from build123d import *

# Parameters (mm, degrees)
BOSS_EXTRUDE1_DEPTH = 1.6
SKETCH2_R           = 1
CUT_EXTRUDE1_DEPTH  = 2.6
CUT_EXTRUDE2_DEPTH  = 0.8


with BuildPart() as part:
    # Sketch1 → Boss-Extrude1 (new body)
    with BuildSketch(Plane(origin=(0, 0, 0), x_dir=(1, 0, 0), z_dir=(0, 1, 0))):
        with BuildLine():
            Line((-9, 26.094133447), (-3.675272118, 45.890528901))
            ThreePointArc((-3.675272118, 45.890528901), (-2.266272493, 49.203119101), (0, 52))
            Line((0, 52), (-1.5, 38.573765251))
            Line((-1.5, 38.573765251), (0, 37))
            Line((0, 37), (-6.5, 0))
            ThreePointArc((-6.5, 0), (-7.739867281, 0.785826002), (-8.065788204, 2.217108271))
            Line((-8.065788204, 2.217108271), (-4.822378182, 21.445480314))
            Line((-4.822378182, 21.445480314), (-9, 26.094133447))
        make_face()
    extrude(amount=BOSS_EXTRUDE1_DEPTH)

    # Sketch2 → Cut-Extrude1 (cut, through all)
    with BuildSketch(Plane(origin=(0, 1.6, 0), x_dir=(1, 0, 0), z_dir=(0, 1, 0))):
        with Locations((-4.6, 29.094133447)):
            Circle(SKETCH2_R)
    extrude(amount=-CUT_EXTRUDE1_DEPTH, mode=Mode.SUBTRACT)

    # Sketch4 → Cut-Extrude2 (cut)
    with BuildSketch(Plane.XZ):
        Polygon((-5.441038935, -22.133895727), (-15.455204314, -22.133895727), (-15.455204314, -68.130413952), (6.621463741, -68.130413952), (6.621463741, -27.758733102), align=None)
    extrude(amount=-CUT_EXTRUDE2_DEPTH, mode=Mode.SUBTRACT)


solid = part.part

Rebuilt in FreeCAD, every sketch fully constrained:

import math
import FreeCAD as App
import Part
import Sketcher
from FreeCAD import Vector
Q = App.Units.Quantity

doc = App.newDocument("Part")
body = doc.addObject("PartDesign::Body", "Body")

sketch1 = body.newObject("Sketcher::SketchObject", "Sketch")
sketch1.AttachmentSupport = (doc.getObject("XZ_Plane"), [""])
sketch1.MapMode = "FlatFace"
sketch1.addGeometry([
    Part.LineSegment(Vector(-3.7, -45.9, 0), Vector(-9, -26.1, 0)),
    Part.LineSegment(Vector(-9, -26.1, 0), Vector(-4.8, -21.4, 0)),
    Part.LineSegment(Vector(-4.8, -21.4, 0), Vector(-8.1, -2.2, 0)),
    Part.ArcOfCircle(Part.Circle(Vector(-6.2, -1.9, 0), Vector(0, 0, 1), 1.9), math.radians(100), math.radians(190)),
    Part.LineSegment(Vector(-6.5, 0, 0), Vector(0, -37, 0)),
    Part.LineSegment(Vector(0, -37, 0), Vector(-1.5, -38.6, 0)),
    Part.LineSegment(Vector(-1.5, -38.6, 0), Vector(0, -52, 0)),
    Part.ArcOfCircle(Part.Circle(Vector(8.8, -42.5, 0), Vector(0, 0, 1), 13), math.radians(-165), math.radians(-133)),
], False)
sketch1.addConstraint([
    Sketcher.Constraint("Coincident", 0, 2, 1, 1),
    Sketcher.Constraint("Coincident", 1, 2, 2, 1),
    Sketcher.Constraint("Tangent", 2, 2, 3, 2),
    Sketcher.Constraint("Coincident", 3, 1, 4, 1),
    Sketcher.Constraint("Coincident", 4, 2, 5, 1),
    Sketcher.Constraint("Coincident", 5, 2, 6, 1),
    Sketcher.Constraint("Coincident", 6, 2, 7, 2),
    Sketcher.Constraint("Tangent", 7, 1, 0, 1),
    Sketcher.Constraint("PointOnObject", 3, 1, -1),
    Sketcher.Constraint("PointOnObject", 4, 2, -2),
    Sketcher.Constraint("PointOnObject", 6, 2, -2),
    Sketcher.Constraint("DistanceX", 0, 2, -1, 1, 9.0),
    Sketcher.Constraint("DistanceY", 4, 2, -1, 1, 37.0),
    Sketcher.Constraint("DistanceY", 6, 2, -1, 1, 52.0),
    Sketcher.Constraint("Distance", 0, 20.5),
    Sketcher.Constraint("Distance", 2, 19.5),
    Sketcher.Constraint("DistanceX", 3, 1, -1, 1, 6.5),
    Sketcher.Constraint("DistanceX", 5, 2, -1, 1, 1.5),
    Sketcher.Constraint("Distance", 1, 6.25),
    Sketcher.Constraint("Radius", 3, 1.925834),
    Sketcher.Constraint("Radius", 7, 12.952882),
    Sketcher.Constraint("DistanceX", 3, 3, -1, 1, 6.166781),
    Sketcher.Constraint("DistanceX", -1, 1, 7, 3, 8.833039),
    Sketcher.Constraint("DistanceY", 5, 2, 0, 2, 12.479632),
])
pad1 = body.newObject("PartDesign::Pad", "Pad")
pad1.Profile = sketch1
pad1.Length = 1.6
pad1.Reversed = True

sketch2 = body.newObject("Sketcher::SketchObject", "Sketch001")
sketch2.AttachmentSupport = (doc.getObject("XZ_Plane"), [""])
sketch2.MapMode = "FlatFace"
sketch2.AttachmentOffset = App.Placement(Vector(0, 0, -1.6), App.Rotation())
sketch2.addGeometry(Part.Circle(Vector(-4.6, -29.1, 0), Vector(0, 0, 1), 1), False)
sketch2.addConstraint([
    Sketcher.Constraint("Diameter", 0, 2.0),
    Sketcher.Constraint("DistanceX", 0, 3, -1, 1, 4.6),
    Sketcher.Constraint("DistanceY", 0, 3, -1, 1, 29.094133),
])
pocket1 = body.newObject("PartDesign::Pocket", "Pocket")
pocket1.Profile = sketch2
pocket1.Type = "ThroughAll"
pocket1.Reversed = True

sketch3 = body.newObject("Sketcher::SketchObject", "Sketch002")
sketch3.AttachmentSupport = (doc.getObject("XZ_Plane"), [""])
sketch3.MapMode = "FlatFace"
sketch3.addGeometry([
    Part.LineSegment(Vector(-5, -22, 0), Vector(-15, -22, 0)),
    Part.LineSegment(Vector(-15, -22, 0), Vector(-15, -68, 0)),
    Part.LineSegment(Vector(-15, -68, 0), Vector(7, -68, 0)),
    Part.LineSegment(Vector(7, -68, 0), Vector(7, -28, 0)),
    Part.LineSegment(Vector(7, -28, 0), Vector(-5, -22, 0)),
], False)
sketch3.addConstraint([
    Sketcher.Constraint("Coincident", 0, 2, 1, 1),
    Sketcher.Constraint("Coincident", 1, 2, 2, 1),
    Sketcher.Constraint("Coincident", 2, 2, 3, 1),
    Sketcher.Constraint("Coincident", 3, 2, 4, 1),
    Sketcher.Constraint("Coincident", 4, 2, 0, 1),
    Sketcher.Constraint("Horizontal", 0),
    Sketcher.Constraint("Vertical", 1),
    Sketcher.Constraint("Horizontal", 2),
    Sketcher.Constraint("Vertical", 3),
    Sketcher.Constraint("Angle", 4, Q("155 deg")),
    Sketcher.Constraint("Distance", 4, 13.309499),
    Sketcher.Constraint("DistanceX", 2, 1, 2, 2, 22.076668),
    Sketcher.Constraint("DistanceY", 1, 2, 1, 1, 45.996518),
    Sketcher.Constraint("DistanceX", 4, 2, -1, 1, 5.441039),
    Sketcher.Constraint("DistanceY", 0, 2, -1, 1, 22.133896),
])
pocket2 = body.newObject("PartDesign::Pocket", "Pocket001")
pocket2.Profile = sketch3
pocket2.Length = 0.8

doc.recompute()
